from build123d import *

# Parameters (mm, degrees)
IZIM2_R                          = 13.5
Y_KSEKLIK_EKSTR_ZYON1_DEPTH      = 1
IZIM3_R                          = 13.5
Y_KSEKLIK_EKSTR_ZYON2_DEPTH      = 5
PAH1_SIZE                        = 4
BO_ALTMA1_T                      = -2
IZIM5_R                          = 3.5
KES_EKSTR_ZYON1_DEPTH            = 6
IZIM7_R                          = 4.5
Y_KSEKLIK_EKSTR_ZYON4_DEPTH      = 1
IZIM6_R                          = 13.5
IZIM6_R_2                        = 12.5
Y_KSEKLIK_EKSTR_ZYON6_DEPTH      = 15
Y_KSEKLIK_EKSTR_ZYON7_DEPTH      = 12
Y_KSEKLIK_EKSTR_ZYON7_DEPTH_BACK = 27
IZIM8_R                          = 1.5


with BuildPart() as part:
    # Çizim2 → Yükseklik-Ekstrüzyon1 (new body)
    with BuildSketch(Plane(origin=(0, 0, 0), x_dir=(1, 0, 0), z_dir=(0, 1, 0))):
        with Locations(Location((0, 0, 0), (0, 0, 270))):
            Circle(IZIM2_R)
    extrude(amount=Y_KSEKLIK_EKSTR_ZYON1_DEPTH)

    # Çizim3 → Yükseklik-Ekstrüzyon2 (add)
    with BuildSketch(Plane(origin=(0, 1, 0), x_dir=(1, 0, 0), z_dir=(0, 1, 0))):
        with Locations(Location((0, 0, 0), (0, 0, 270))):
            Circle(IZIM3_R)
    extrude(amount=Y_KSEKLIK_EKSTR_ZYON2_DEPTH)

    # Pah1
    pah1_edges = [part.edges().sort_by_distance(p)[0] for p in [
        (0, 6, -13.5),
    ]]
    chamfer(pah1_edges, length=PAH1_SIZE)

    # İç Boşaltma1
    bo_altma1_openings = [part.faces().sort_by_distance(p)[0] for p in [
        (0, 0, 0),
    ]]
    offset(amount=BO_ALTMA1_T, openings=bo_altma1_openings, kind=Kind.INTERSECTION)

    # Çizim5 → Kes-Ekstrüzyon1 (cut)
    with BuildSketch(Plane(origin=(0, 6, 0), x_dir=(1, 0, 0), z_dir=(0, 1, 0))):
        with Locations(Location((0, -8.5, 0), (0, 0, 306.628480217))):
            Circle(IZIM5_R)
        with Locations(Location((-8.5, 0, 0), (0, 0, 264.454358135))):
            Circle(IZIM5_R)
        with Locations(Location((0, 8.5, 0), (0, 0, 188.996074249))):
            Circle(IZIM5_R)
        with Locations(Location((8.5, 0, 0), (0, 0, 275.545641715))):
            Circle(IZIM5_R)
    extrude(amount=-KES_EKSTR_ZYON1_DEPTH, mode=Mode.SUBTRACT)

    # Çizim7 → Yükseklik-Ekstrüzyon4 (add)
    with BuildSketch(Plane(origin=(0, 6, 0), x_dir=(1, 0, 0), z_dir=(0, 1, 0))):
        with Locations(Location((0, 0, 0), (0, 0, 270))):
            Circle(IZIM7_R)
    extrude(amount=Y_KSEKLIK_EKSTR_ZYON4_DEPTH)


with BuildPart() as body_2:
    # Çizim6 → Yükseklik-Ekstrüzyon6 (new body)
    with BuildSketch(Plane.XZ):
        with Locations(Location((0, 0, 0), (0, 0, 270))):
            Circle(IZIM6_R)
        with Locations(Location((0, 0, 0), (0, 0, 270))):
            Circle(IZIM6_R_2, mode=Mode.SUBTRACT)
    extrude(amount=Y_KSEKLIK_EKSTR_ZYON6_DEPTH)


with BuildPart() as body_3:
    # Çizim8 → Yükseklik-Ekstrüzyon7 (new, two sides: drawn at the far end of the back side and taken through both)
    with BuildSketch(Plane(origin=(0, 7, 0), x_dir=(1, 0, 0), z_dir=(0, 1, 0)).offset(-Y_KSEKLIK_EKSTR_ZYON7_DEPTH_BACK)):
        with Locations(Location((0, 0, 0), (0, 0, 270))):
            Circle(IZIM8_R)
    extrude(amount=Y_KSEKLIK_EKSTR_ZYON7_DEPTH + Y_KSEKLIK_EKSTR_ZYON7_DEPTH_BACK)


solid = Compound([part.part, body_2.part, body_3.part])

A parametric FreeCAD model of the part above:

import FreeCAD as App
import Part
import Sketcher

V = App.Vector


def edges_at(feature, points):
    """Names of the edges that pass closest to the given points."""
    edges = feature.Shape.Edges
    near = lambda p: min(range(len(edges)), key=lambda i: edges[i].distToShape(Part.Vertex(*p))[0])
    return sorted({f"Edge{near(p) + 1}" for p in points})


def faces_at(feature, points):
    """Names of the faces that lie closest to the given points."""
    faces = feature.Shape.Faces
    near = lambda p: min(range(len(faces)), key=lambda i: faces[i].distToShape(Part.Vertex(*p))[0])
    return sorted({f"Face{near(p) + 1}" for p in points})

doc = App.newDocument("Part")
params = doc.addObject("Spreadsheet::Sheet", "Params")
for row, (alias, value) in enumerate([
    ("sketch1_diameter", "27 mm"),
    ("pad1_length", "1 mm"),
    ("sketch2_diameter", "27 mm"),
    ("pad2_length", "5 mm"),
    ("chamfer_size", "4 mm"),
    ("thickness_wall", "2 mm"),
    ("sketch3_diameter", "7 mm"),
    ("pocket1_length", "6 mm"),
    ("sketch4_diameter", "9 mm"),
    ("pad3_length", "1 mm"),
    ("sketch5_diameter", "27 mm"),
    ("sketch5_diameter2", "25 mm"),
    ("pad4_length", "15 mm"),
    ("sketch6_diameter", "3 mm"),
    ("pad5_length", "12 mm"),
    ("pad5_length2", "27 mm"),
], start=1):
    params.set(f"A{row}", alias)
    params.set(f"B{row}", "=" + value)
    params.setAlias(f"B{row}", alias)

body = doc.addObject("PartDesign::Body", "Body")

sketch1 = body.newObject("Sketcher::SketchObject", "Sketch")
sketch1.AttachmentSupport = (doc.getObject("XZ_Plane"), [""])
sketch1.MapMode = "FlatFace"
sketch1.addGeometry(Part.Circle(V(0, 0, 0), V(0, 0, 1), 14), False)
sketch1.addConstraint([
    Sketcher.Constraint("Coincident", 0, 3, -1, 1),
    Sketcher.Constraint("Diameter", 0, 27.0),
])
sketch1.setExpression("Constraints[1]", "Params.sketch1_diameter")
pad1 = body.newObject("PartDesign::Pad", "Pad")
pad1.Profile = sketch1
pad1.setExpression("Length", "Params.pad1_length")
pad1.Reversed = True

sketch2 = body.newObject("Sketcher::SketchObject", "Sketch001")
sketch2.AttachmentSupport = (doc.getObject("XZ_Plane"), [""])
sketch2.MapMode = "FlatFace"
sketch2.AttachmentOffset = App.Placement(V(0, 0, -1), App.Rotation())
sketch2.addGeometry(Part.Circle(V(0, 0, 0), V(0, 0, 1), 14), False)
sketch2.addConstraint([
    Sketcher.Constraint("Coincident", 0, 3, -1, 1),
    Sketcher.Constraint("Diameter", 0, 27.0),
])
sketch2.setExpression("Constraints[1]", "Params.sketch2_diameter")
pad2 = body.newObject("PartDesign::Pad", "Pad001")
pad2.Profile = sketch2
pad2.setExpression("Length", "Params.pad2_length")
pad2.Reversed = True
doc.recompute()

chamfer = body.newObject("PartDesign::Chamfer", "Chamfer")
chamfer.Base = (pad2, edges_at(pad2, [(0, 6, -13.5)]))
chamfer.setExpression("Size", "Params.chamfer_size")
doc.recompute()

thickness = body.newObject("PartDesign::Thickness", "Thickness")
thickness.Base = (chamfer, faces_at(chamfer, [(0, 0, 0)]))
thickness.setExpression("Value", "Params.thickness_wall")
thickness.Reversed = True
thickness.Join = "Intersection"

sketch3 = body.newObject("Sketcher::SketchObject", "Sketch002")
sketch3.AttachmentSupport = (doc.getObject("XZ_Plane"), [""])
sketch3.MapMode = "FlatFace"
sketch3.AttachmentOffset = App.Placement(V(0, 0, -6), App.Rotation())
sketch3.addGeometry([
    Part.Circle(V(0, 8.5, 0), V(0, 0, 1), 3.5),
    Part.Circle(V(-8.5, 0, 0), V(0, 0, 1), 3.5),
    Part.Circle(V(0, -8.5, 0), V(0, 0, 1), 3.5),
    Part.Circle(V(8.5, 0, 0), V(0, 0, 1), 3.5),
], False)
sketch3.addConstraint([
    Sketcher.Constraint("Equal", 0, 1),
    Sketcher.Constraint("Equal", 1, 2),
    Sketcher.Constraint("Equal", 2, 3),
    Sketcher.Constraint("Symmetric", 0, 3, 2, 3, -1, 1),
    Sketcher.Constraint("Symmetric", 1, 3, 3, 3, -1, 1),
    Sketcher.Constraint("PointOnObject", 0, 3, -2),
    Sketcher.Constraint("PointOnObject", 1, 3, -1),
    Sketcher.Constraint("Diameter", 0, 7.0),
    Sketcher.Constraint("DistanceY", 2, 3, 0, 3, 17.0),
    Sketcher.Constraint("DistanceX", 1, 3, 3, 3, 17.0),
])
sketch3.setExpression("Constraints[7]", "Params.sketch3_diameter")
pocket1 = body.newObject("PartDesign::Pocket", "Pocket")
pocket1.Profile = sketch3
pocket1.setExpression("Length", "Params.pocket1_length")
pocket1.Reversed = True

sketch4 = body.newObject("Sketcher::SketchObject", "Sketch003")
sketch4.AttachmentSupport = (doc.getObject("XZ_Plane"), [""])
sketch4.MapMode = "FlatFace"
sketch4.AttachmentOffset = App.Placement(V(0, 0, -6), App.Rotation())
sketch4.addGeometry(Part.Circle(V(0, 0, 0), V(0, 0, 1), 4.5), False)
sketch4.addConstraint([
    Sketcher.Constraint("Coincident", 0, 3, -1, 1),
    Sketcher.Constraint("Diameter", 0, 9.0),
])
sketch4.setExpression("Constraints[1]", "Params.sketch4_diameter")
pad3 = body.newObject("PartDesign::Pad", "Pad002")
pad3.Profile = sketch4
pad3.setExpression("Length", "Params.pad3_length")
pad3.Reversed = True
body2 = doc.addObject("PartDesign::Body", "Body001")

sketch5 = body2.newObject("Sketcher::SketchObject", "Sketch004")
sketch5.AttachmentSupport = (doc.getObject("XZ_Plane001"), [""])
sketch5.MapMode = "FlatFace"
sketch5.addGeometry([
    Part.Circle(V(0, 0, 0), V(0, 0, 1), 14),
    Part.Circle(V(0, 0, 0), V(0, 0, 1), 12),
], False)
sketch5.addConstraint([
    Sketcher.Constraint("Coincident", 0, 3, -1, 1),
    Sketcher.Constraint("Coincident", 1, 3, -1, 1),
    Sketcher.Constraint("Diameter", 0, 27.0),
    Sketcher.Constraint("Diameter", 1, 25.0),
])
sketch5.setExpression("Constraints[2]", "Params.sketch5_diameter")
sketch5.setExpression("Constraints[3]", "Params.sketch5_diameter2")
pad4 = body2.newObject("PartDesign::Pad", "Pad003")
pad4.Profile = sketch5
pad4.setExpression("Length", "Params.pad4_length")
body3 = doc.addObject("PartDesign::Body", "Body002")

sketch6 = body3.newObject("Sketcher::SketchObject", "Sketch005")
sketch6.AttachmentSupport = (doc.getObject("XZ_Plane002"), [""])
sketch6.MapMode = "FlatFace"
sketch6.AttachmentOffset = App.Placement(V(0, 0, -7), App.Rotation())
sketch6.addGeometry(Part.Circle(V(0, 0, 0), V(0, 0, 1), 1.5), False)
sketch6.addConstraint([
    Sketcher.Constraint("Coincident", 0, 3, -1, 1),
    Sketcher.Constraint("Diameter", 0, 3.0),
])
sketch6.setExpression("Constraints[1]", "Params.sketch6_diameter")
pad5 = body3.newObject("PartDesign::Pad", "Pad004")
pad5.Profile = sketch6
pad5.Type = "TwoLengths"
pad5.setExpression("Length", "Params.pad5_length")
pad5.setExpression("Length2", "Params.pad5_length2")
pad5.Reversed = True

doc.recompute()
